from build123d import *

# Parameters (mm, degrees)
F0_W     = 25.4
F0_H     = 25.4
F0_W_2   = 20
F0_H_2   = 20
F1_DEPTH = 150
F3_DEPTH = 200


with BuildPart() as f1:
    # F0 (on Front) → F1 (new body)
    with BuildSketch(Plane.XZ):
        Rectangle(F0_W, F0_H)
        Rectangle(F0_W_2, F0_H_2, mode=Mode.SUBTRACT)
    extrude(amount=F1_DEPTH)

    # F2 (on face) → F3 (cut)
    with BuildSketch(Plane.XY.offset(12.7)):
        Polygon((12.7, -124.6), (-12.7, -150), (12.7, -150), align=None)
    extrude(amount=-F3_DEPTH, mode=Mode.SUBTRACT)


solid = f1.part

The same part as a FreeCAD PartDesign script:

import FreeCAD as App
import Part
import Sketcher
from FreeCAD import Vector

doc = App.newDocument("Part")
body = doc.addObject("PartDesign::Body", "Body")

sketch1 = body.newObject("Sketcher::SketchObject", "Sketch")
sketch1.AttachmentSupport = (doc.getObject("XZ_Plane"), [""])
sketch1.MapMode = "FlatFace"
sketch1.addGeometry([
    Part.LineSegment(Vector(-13, 13, 0), Vector(-13, -13, 0)),
    Part.LineSegment(Vector(-13, -13, 0), Vector(13, -13, 0)),
    Part.LineSegment(Vector(13, -13, 0), Vector(13, 13, 0)),
    Part.LineSegment(Vector(13, 13, 0), Vector(-13, 13, 0)),
    Part.LineSegment(Vector(10, -10, 0), Vector(-10, -10, 0)),
    Part.LineSegment(Vector(-10, -10, 0), Vector(-10, 10, 0)),
    Part.LineSegment(Vector(-10, 10, 0), Vector(10, 10, 0)),
    Part.LineSegment(Vector(10, 10, 0), Vector(10, -10, 0)),
], False)
sketch1.addConstraint([
    Sketcher.Constraint("Coincident", 0, 2, 1, 1),
    Sketcher.Constraint("Coincident", 1, 2, 2, 1),
    Sketcher.Constraint("Coincident", 2, 2, 3, 1),
    Sketcher.Constraint("Coincident", 3, 2, 0, 1),
    Sketcher.Constraint("Coincident", 4, 2, 5, 1),
    Sketcher.Constraint("Coincident", 5, 2, 6, 1),
    Sketcher.Constraint("Coincident", 6, 2, 7, 1),
    Sketcher.Constraint("Coincident", 7, 2, 4, 1),
    Sketcher.Constraint("Vertical", 0),
    Sketcher.Constraint("Horizontal", 1),
    Sketcher.Constraint("Vertical", 2),
    Sketcher.Constraint("Horizontal", 3),
    Sketcher.Constraint("Horizontal", 4),
    Sketcher.Constraint("Vertical", 5),
    Sketcher.Constraint("Horizontal", 6),
    Sketcher.Constraint("Vertical", 7),
    Sketcher.Constraint("Symmetric", 0, 2, 2, 2, -1, 1),
    Sketcher.Constraint("Symmetric", 4, 2, 6, 2, -1, 1),
    Sketcher.Constraint("Equal", 3, 0),
    Sketcher.Constraint("Equal", 6, 5),
    Sketcher.Constraint("DistanceX", 4, 2, 4, 1, 20.0),
    Sketcher.Constraint("DistanceX", 1, 1, 1, 2, 25.4),
])
pad1 = body.newObject("PartDesign::Pad", "Pad")
pad1.Profile = sketch1
pad1.Length = 150

sketch2 = body.newObject("Sketcher::SketchObject", "Sketch001")
sketch2.AttachmentSupport = (doc.getObject("XY_Plane"), [""])
sketch2.MapMode = "FlatFace"
sketch2.AttachmentOffset = App.Placement(Vector(0, 0, 12.7), App.Rotation())
sketch2.addGeometry([
    Part.LineSegment(Vector(13, -125, 0), Vector(-13, -150, 0)),
    Part.LineSegment(Vector(-13, -150, 0), Vector(13, -150, 0)),
    Part.LineSegment(Vector(13, -150, 0), Vector(13, -125, 0)),
], False)
sketch2.addConstraint([
    Sketcher.Constraint("Coincident", 0, 2, 1, 1),
    Sketcher.Constraint("Coincident", 1, 2, 2, 1),
    Sketcher.Constraint("Coincident", 2, 2, 0, 1),
    Sketcher.Constraint("Horizontal", 1),
    Sketcher.Constraint("Vertical", 2),
    Sketcher.Constraint("Equal", 1, 2),
    Sketcher.Constraint("DistanceX", 1, 1, 1, 2, 25.4),
    Sketcher.Constraint("DistanceY", 0, 2, -1, 1, 150.0),
    Sketcher.Constraint("DistanceX", 0, 2, -1, 1, 12.7),
])
pocket1 = body.newObject("PartDesign::Pocket", "Pocket")
pocket1.Profile = sketch2
pocket1.Length = 200

doc.recompute()
